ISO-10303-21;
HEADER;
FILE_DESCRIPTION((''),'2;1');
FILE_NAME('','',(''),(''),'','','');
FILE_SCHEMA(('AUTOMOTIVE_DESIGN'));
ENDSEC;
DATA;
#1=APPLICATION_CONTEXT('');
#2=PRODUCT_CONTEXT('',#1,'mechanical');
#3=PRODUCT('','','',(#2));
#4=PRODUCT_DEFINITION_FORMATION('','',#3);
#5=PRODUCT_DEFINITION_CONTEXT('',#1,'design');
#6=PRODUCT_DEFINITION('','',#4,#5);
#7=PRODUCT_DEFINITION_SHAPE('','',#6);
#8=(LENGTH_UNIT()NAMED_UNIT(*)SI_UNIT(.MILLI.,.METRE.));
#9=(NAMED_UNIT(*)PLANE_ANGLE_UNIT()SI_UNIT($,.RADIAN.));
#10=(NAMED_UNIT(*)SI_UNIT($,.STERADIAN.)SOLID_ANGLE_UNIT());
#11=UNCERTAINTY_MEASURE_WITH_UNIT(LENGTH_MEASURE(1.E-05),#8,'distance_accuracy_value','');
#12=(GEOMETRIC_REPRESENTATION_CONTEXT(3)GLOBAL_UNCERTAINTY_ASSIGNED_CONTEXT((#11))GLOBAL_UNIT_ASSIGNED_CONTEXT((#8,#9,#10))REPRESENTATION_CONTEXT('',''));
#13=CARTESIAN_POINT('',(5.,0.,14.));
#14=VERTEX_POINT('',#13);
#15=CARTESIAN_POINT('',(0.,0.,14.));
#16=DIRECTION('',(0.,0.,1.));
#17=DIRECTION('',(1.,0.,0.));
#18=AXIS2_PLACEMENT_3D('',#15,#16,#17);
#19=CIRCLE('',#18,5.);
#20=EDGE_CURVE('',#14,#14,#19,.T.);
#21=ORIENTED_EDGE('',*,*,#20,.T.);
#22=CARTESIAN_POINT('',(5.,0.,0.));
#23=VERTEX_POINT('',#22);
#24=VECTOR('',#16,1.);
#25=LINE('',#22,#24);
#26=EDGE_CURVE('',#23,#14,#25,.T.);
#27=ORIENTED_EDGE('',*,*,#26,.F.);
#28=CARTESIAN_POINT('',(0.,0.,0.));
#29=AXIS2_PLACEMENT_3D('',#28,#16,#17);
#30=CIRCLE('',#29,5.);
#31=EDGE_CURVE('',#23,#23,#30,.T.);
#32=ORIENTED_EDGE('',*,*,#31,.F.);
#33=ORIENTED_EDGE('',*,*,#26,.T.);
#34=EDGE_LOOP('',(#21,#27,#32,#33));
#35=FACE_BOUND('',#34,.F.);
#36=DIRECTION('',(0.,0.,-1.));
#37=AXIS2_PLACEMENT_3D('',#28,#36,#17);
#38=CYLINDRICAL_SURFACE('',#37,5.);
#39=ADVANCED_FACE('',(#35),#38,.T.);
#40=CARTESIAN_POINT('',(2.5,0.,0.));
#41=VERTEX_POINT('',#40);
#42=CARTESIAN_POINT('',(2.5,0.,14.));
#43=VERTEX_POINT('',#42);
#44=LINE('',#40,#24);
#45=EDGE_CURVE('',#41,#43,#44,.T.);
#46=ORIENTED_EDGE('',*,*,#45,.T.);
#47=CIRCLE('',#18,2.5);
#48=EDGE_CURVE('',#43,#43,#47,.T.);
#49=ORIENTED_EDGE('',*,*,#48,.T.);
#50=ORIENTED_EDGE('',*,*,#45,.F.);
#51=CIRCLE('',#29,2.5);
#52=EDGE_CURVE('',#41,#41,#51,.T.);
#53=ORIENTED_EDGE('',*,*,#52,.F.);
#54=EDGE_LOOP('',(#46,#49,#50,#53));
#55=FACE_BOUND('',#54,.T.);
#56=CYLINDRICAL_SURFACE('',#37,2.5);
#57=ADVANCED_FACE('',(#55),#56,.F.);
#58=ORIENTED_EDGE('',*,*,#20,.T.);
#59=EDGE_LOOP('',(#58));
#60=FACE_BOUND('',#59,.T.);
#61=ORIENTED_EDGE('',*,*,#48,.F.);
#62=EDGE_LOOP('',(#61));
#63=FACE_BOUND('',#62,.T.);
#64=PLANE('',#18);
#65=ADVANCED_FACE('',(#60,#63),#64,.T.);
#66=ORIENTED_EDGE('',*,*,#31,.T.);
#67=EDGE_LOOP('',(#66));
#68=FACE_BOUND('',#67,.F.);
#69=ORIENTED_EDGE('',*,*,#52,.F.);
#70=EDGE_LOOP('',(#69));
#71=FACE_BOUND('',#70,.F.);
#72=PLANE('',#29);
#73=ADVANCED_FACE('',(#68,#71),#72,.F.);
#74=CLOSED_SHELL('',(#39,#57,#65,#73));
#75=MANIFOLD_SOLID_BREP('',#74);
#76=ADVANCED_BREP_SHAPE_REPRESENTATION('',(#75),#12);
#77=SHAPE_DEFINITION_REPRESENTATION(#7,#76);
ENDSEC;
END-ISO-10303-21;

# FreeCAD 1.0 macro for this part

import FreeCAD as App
import Part
import Sketcher
Q = App.Units.Quantity

doc = App.newDocument("Part")
params = doc.addObject("Spreadsheet::Sheet", "Params")
for row, (alias, value) in enumerate([
    ("sketch1_diameter", "10 mm"),
    ("sketch1_diameter2", "5 mm"),
    ("pad1_length", "14 mm"),
], start=1):
    params.set(f"A{row}", alias)
    params.set(f"B{row}", "=" + value)
    params.setAlias(f"B{row}", alias)

body = doc.addObject("PartDesign::Body", "Body")

sketch1 = body.newObject("Sketcher::SketchObject", "Sketch")
sketch1.AttachmentSupport = (doc.getObject("XY_Plane"), [""])
sketch1.MapMode = "FlatFace"
sketch1.addGeometry([
    Part.Circle(App.Vector(0, 0, 0), App.Vector(0, 0, 1), 5),
    Part.Circle(App.Vector(0, 0, 0), App.Vector(0, 0, 1), 2.5),
], False)
sketch1.addConstraint([
    Sketcher.Constraint("Coincident", 0, 3, -1, 1),
    Sketcher.Constraint("Coincident", 1, 3, -1, 1),
    Sketcher.Constraint("Diameter", 0, Q("10 mm")),
    Sketcher.Constraint("Diameter", 1, Q("5 mm")),
])
sketch1.setExpression("Constraints[2]", "Params.sketch1_diameter")
sketch1.setExpression("Constraints[3]", "Params.sketch1_diameter2")
pad1 = body.newObject("PartDesign::Pad", "Pad")
pad1.Profile = sketch1
pad1.setExpression("Length", "Params.pad1_length")

doc.recompute()
